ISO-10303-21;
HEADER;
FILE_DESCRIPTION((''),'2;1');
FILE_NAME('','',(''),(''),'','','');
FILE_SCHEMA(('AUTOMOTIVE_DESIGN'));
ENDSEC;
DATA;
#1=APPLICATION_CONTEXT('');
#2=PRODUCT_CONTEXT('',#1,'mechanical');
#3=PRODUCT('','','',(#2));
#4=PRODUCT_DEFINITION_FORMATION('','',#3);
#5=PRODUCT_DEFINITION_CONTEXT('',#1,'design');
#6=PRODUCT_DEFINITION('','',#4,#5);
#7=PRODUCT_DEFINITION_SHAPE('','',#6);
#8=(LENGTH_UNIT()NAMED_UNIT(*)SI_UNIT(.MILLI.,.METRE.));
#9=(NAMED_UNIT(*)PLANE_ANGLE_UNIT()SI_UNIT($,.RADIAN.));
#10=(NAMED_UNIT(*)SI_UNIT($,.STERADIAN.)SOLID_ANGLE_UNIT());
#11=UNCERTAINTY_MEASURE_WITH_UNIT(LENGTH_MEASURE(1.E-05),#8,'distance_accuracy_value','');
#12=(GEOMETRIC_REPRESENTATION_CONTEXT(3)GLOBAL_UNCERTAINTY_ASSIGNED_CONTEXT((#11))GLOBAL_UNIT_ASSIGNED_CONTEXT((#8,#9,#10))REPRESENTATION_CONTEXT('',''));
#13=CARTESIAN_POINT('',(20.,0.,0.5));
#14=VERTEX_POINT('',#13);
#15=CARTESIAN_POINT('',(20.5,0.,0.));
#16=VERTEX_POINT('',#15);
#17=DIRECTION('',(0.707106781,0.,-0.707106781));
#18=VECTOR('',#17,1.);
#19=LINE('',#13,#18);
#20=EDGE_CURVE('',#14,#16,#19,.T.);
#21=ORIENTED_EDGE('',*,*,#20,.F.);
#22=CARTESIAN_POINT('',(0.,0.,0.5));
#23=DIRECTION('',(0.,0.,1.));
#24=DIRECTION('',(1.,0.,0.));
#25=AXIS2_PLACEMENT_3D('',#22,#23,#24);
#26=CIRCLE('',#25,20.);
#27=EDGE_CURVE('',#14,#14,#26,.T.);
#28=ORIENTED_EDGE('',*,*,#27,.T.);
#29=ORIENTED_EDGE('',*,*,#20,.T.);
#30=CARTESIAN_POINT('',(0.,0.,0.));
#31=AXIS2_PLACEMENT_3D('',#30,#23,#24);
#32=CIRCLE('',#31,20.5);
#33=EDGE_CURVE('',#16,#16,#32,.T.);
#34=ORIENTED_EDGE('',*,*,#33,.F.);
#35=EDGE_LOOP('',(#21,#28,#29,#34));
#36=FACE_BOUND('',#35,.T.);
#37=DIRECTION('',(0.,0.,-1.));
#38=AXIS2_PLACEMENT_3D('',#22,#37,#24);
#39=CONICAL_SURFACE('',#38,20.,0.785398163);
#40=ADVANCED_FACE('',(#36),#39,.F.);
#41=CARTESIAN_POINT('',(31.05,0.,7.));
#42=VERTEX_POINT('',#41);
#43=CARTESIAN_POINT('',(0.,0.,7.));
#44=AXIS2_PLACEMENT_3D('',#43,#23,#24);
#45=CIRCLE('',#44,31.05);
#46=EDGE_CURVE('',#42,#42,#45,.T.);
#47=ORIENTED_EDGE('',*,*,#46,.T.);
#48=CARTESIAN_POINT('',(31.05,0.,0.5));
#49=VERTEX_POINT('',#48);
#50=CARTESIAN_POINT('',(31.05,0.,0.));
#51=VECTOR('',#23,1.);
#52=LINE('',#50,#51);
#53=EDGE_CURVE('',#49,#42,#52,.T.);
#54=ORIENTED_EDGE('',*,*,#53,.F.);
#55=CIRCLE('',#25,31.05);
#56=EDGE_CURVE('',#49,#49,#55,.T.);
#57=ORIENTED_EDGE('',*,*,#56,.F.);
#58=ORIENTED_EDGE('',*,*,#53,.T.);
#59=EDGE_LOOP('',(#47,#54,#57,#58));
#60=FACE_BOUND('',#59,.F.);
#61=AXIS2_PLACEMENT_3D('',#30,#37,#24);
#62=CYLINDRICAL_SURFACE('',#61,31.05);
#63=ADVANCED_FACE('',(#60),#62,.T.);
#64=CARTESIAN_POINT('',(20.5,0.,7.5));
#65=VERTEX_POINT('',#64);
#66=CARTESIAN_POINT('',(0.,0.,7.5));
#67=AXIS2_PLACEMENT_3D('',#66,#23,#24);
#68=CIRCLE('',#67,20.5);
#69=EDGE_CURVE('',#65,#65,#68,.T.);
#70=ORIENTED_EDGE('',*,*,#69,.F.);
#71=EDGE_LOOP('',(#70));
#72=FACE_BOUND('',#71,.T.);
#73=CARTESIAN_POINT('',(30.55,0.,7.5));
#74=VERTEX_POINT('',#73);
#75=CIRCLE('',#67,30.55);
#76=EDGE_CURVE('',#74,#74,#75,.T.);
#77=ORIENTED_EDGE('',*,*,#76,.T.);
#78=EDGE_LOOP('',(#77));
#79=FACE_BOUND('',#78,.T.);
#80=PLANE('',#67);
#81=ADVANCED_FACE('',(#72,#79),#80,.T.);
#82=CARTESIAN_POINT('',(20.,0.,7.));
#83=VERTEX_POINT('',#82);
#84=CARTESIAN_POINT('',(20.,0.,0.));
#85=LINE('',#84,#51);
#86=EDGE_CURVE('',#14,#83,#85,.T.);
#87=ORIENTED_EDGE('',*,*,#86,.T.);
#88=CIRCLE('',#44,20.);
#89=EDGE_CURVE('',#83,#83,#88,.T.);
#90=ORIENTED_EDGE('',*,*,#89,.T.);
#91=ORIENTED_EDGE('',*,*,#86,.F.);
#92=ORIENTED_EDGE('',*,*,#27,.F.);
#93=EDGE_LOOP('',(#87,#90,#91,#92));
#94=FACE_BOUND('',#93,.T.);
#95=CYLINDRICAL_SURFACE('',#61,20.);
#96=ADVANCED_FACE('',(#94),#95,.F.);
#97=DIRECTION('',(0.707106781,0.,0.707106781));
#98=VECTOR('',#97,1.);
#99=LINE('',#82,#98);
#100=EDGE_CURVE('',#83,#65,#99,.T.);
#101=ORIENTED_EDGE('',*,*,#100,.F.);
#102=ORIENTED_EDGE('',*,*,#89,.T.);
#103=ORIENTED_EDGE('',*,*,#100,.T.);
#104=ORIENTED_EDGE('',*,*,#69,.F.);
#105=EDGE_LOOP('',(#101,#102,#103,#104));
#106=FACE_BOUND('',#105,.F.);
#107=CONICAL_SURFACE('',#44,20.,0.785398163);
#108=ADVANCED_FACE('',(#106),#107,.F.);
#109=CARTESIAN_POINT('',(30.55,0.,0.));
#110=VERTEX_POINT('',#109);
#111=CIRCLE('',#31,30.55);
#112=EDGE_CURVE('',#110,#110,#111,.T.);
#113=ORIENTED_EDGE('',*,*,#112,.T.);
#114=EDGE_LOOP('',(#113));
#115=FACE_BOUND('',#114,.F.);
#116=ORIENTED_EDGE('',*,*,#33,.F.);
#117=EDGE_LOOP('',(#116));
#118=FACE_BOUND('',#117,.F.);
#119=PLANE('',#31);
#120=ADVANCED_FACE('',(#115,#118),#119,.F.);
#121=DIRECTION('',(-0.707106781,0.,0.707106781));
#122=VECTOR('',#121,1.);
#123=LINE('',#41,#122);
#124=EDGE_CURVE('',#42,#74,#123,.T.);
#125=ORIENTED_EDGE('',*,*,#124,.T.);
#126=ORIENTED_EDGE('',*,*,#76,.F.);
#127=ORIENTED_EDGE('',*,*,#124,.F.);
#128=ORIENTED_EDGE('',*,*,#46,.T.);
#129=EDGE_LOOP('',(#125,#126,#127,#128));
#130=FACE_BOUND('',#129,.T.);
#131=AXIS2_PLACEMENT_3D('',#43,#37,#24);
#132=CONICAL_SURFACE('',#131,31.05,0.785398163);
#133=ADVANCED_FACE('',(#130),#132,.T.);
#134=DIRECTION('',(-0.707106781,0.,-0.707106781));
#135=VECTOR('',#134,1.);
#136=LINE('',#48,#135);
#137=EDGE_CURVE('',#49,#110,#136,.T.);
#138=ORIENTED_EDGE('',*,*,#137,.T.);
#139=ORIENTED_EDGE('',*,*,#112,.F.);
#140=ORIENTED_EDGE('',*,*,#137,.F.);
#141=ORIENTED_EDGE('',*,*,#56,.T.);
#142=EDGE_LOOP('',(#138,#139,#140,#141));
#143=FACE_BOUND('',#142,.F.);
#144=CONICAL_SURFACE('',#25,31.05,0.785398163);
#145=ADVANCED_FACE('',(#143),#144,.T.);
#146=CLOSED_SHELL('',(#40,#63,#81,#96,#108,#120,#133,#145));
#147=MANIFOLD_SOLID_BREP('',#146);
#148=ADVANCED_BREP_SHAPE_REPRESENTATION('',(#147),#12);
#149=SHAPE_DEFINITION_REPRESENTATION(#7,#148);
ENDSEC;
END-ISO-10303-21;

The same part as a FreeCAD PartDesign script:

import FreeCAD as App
import Part
import Sketcher

V = App.Vector


def edges_at(feature, points):
    """Names of the edges that pass closest to the given points."""
    edges = feature.Shape.Edges
    near = lambda p: min(range(len(edges)), key=lambda i: edges[i].distToShape(Part.Vertex(*p))[0])
    return sorted({f"Edge{near(p) + 1}" for p in points})

doc = App.newDocument("Part")
body = doc.addObject("PartDesign::Body", "Body")

# Sketch on XY plane
sketch1 = body.newObject("Sketcher::SketchObject", "Sketch")
sketch1.AttachmentSupport = (doc.getObject("XY_Plane"), [""])
sketch1.MapMode = "FlatFace"
sketch1.addGeometry(Part.Circle(V(0, 0, 0), V(0, 0, 1), 31), False)
sketch1.addGeometry(Part.Circle(V(0, 0, 0), V(0, 0, 1), 20), False)
sketch1.addConstraint(Sketcher.Constraint("Coincident", 0, 3, -1, 1))
sketch1.addConstraint(Sketcher.Constraint("Coincident", 1, 3, -1, 1))
sketch1.addConstraint(Sketcher.Constraint("Diameter", 1, 40.0))
sketch1.addConstraint(Sketcher.Constraint("Diameter", 0, 62.1))
pad1 = body.newObject("PartDesign::Pad", "Pad")
pad1.Profile = sketch1
pad1.Length = 7.5
doc.recompute()

chamfer = body.newObject("PartDesign::Chamfer", "Chamfer")
chamfer.Base = (pad1, edges_at(pad1, [
    (-20, 0, 7.5),
    (-20, 0, 0),
    (-31.05, 0, 7.5),
    (-31.05, 0, 0),
]))
chamfer.Size = 0.5

doc.recompute()
